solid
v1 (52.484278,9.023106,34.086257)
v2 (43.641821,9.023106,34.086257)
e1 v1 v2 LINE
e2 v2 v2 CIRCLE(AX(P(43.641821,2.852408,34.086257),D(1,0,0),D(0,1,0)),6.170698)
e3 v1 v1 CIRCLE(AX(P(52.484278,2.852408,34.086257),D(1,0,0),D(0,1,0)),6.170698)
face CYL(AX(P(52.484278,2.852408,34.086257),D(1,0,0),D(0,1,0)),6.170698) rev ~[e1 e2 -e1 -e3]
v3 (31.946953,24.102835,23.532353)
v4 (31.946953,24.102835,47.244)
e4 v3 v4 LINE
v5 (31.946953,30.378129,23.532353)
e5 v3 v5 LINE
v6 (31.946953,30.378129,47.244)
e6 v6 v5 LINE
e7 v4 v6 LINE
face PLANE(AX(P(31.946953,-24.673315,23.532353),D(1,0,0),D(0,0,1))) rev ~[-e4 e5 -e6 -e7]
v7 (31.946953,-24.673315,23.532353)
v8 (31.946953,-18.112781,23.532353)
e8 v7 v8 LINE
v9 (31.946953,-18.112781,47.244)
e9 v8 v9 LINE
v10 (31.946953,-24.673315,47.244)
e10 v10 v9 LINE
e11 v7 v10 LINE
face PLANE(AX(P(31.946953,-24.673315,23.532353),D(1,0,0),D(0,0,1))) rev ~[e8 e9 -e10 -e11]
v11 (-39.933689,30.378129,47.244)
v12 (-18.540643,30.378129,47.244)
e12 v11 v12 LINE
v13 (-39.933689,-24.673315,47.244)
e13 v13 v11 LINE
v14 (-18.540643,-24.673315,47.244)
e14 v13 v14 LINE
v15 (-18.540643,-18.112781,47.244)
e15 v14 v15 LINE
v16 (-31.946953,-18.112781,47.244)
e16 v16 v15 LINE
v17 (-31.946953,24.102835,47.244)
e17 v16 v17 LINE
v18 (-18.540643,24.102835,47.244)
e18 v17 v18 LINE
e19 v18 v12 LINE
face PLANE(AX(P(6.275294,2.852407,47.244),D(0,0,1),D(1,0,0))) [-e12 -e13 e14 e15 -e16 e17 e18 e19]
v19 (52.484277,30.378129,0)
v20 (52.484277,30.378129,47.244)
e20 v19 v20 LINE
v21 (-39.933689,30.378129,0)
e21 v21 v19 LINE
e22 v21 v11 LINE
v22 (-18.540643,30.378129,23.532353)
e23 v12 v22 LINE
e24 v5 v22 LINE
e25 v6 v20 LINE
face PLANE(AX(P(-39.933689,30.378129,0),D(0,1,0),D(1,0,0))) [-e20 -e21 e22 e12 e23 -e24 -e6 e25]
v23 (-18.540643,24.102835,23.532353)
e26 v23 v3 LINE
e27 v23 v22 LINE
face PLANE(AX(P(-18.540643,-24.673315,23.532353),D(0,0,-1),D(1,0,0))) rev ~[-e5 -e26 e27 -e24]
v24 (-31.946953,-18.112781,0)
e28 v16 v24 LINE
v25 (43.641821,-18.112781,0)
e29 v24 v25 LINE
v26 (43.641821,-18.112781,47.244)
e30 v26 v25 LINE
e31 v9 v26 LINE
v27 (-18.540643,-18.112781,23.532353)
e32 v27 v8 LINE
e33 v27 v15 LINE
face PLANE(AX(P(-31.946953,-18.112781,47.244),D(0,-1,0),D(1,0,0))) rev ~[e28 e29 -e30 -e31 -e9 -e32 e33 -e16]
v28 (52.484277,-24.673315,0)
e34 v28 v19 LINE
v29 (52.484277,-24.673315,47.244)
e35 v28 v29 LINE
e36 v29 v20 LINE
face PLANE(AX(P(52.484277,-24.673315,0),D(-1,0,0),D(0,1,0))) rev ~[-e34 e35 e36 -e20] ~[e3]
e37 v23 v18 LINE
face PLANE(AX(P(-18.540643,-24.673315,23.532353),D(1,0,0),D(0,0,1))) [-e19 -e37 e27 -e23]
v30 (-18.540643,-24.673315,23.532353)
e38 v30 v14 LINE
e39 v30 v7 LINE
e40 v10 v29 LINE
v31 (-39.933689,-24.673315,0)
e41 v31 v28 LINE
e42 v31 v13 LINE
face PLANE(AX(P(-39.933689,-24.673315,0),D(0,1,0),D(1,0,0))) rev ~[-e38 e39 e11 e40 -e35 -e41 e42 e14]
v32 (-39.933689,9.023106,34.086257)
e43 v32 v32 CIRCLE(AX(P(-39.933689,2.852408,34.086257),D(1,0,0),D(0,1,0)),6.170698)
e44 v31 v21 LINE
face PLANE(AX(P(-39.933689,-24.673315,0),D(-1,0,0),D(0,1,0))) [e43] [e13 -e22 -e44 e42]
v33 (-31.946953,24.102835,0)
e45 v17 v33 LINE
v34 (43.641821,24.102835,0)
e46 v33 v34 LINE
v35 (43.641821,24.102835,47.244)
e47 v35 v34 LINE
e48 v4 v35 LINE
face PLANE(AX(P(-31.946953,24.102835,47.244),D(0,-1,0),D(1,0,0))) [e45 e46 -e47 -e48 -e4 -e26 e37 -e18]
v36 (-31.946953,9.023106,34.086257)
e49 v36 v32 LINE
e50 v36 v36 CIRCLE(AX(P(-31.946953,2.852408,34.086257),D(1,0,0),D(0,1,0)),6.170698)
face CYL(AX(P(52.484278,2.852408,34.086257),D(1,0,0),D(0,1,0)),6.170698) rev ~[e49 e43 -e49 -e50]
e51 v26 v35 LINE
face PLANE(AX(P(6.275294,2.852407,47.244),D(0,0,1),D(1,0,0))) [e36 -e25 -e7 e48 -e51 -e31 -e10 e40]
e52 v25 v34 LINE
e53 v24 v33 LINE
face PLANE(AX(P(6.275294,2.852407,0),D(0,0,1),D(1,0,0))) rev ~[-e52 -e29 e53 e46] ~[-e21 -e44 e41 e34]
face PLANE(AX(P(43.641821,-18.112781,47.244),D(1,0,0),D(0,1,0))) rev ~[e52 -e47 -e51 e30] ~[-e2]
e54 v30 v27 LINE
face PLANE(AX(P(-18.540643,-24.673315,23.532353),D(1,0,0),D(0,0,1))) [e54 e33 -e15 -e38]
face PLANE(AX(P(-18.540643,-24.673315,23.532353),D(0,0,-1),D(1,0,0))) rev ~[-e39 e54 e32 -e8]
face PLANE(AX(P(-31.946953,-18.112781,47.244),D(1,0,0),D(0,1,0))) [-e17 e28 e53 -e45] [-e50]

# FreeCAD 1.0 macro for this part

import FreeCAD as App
import Part
import Sketcher
Q = App.Units.Quantity

doc = App.newDocument("Part")
params = doc.addObject("Spreadsheet::Sheet", "Params")
for row, (alias, value) in enumerate([
    ("pad1_length", "1.86 in"),
], start=1):
    params.set(f"A{row}", alias)
    params.set(f"B{row}", "=" + value)
    params.setAlias(f"B{row}", alias)

body = doc.addObject("PartDesign::Body", "Body")

# Sketch on XY plane
sketch1 = body.newObject("Sketcher::SketchObject", "Sketch")
sketch1.AttachmentSupport = (doc.getObject("XY_Plane"), [""])
sketch1.MapMode = "FlatFace"
sketch1.addGeometry([
    Part.LineSegment(App.Vector(-40, 30, 0), App.Vector(-40, -25, 0)),
    Part.LineSegment(App.Vector(-40, -25, 0), App.Vector(52, -25, 0)),
    Part.LineSegment(App.Vector(52, -25, 0), App.Vector(52, 30, 0)),
    Part.LineSegment(App.Vector(52, 30, 0), App.Vector(-40, 30, 0)),
], False)
sketch1.addConstraint([
    Sketcher.Constraint("Coincident", 0, 2, 1, 1),
    Sketcher.Constraint("Coincident", 1, 2, 2, 1),
    Sketcher.Constraint("Coincident", 2, 2, 3, 1),
    Sketcher.Constraint("Coincident", 3, 2, 0, 1),
    Sketcher.Constraint("Vertical", 0),
    Sketcher.Constraint("Horizontal", 1),
    Sketcher.Constraint("Vertical", 2),
    Sketcher.Constraint("Horizontal", 3),
    Sketcher.Constraint("DistanceX", 1, 1, 1, 2, 92.417967),
    Sketcher.Constraint("DistanceY", 0, 2, 0, 1, 55.051444),
    Sketcher.Constraint("DistanceX", 0, 2, -1, 1, 39.933689),
    Sketcher.Constraint("DistanceY", -1, 1, 2, 2, 30.378129),
])
pad1 = body.newObject("PartDesign::Pad", "Pad")
pad1.Profile = sketch1
pad1.setExpression("Length", "Params.pad1_length")

# Sketch on XY plane
sketch2 = body.newObject("Sketcher::SketchObject", "Sketch001")
sketch2.AttachmentSupport = (doc.getObject("XY_Plane"), [""])
sketch2.MapMode = "FlatFace"
sketch2.AttachmentOffset = App.Placement(App.Vector(0, 0, 1.86 * 25.4), App.Rotation())
sketch2.addGeometry([
    Part.LineSegment(App.Vector(-32, 24, 0), App.Vector(-32, -18, 0)),
    Part.LineSegment(App.Vector(-32, -18, 0), App.Vector(44, -18, 0)),
    Part.LineSegment(App.Vector(44, -18, 0), App.Vector(44, 24, 0)),
    Part.LineSegment(App.Vector(44, 24, 0), App.Vector(-32, 24, 0)),
], False)
sketch2.addConstraint([
    Sketcher.Constraint("Coincident", 0, 2, 1, 1),
    Sketcher.Constraint("Coincident", 1, 2, 2, 1),
    Sketcher.Constraint("Coincident", 2, 2, 3, 1),
    Sketcher.Constraint("Coincident", 3, 2, 0, 1),
    Sketcher.Constraint("Vertical", 0),
    Sketcher.Constraint("Horizontal", 1),
    Sketcher.Constraint("Vertical", 2),
    Sketcher.Constraint("Horizontal", 3),
    Sketcher.Constraint("DistanceX", 1, 1, 1, 2, 75.588774),
    Sketcher.Constraint("DistanceY", 0, 2, 0, 1, 42.215616),
    Sketcher.Constraint("DistanceY", 0, 2, -1, 1, 18.112781),
    Sketcher.Constraint("DistanceX", -1, 1, 1, 2, 43.641821),
])
pocket1 = body.newObject("PartDesign::Pocket", "Pocket")
pocket1.Profile = sketch2
pocket1.Type = "ThroughAll"

# Sketch on XZ plane
sketch3 = body.newObject("Sketcher::SketchObject", "Sketch002")
sketch3.AttachmentSupport = (doc.getObject("XZ_Plane"), [""])
sketch3.MapMode = "FlatFace"
sketch3.AttachmentOffset = App.Placement(App.Vector(0, 0, 24.673315), App.Rotation())
sketch3.addGeometry([
    Part.LineSegment(App.Vector(-19, 47, 0), App.Vector(-19, 24, 0)),
    Part.LineSegment(App.Vector(-19, 24, 0), App.Vector(32, 24, 0)),
    Part.LineSegment(App.Vector(32, 24, 0), App.Vector(32, 47, 0)),
    Part.LineSegment(App.Vector(32, 47, 0), App.Vector(-19, 47, 0)),
], False)
sketch3.addConstraint([
    Sketcher.Constraint("Coincident", 0, 2, 1, 1),
    Sketcher.Constraint("Coincident", 1, 2, 2, 1),
    Sketcher.Constraint("Coincident", 2, 2, 3, 1),
    Sketcher.Constraint("Coincident", 3, 2, 0, 1),
    Sketcher.Constraint("Vertical", 0),
    Sketcher.Constraint("Horizontal", 1),
    Sketcher.Constraint("Vertical", 2),
    Sketcher.Constraint("Horizontal", 3),
    Sketcher.Constraint("DistanceY", -1, 1, 2, 2, Q("1.86 in")),
    Sketcher.Constraint("DistanceX", 1, 1, 1, 2, 50.487596),
    Sketcher.Constraint("DistanceY", 0, 2, 0, 1, 23.711647),
    Sketcher.Constraint("DistanceX", 0, 2, -1, 1, 18.540643),
])
pocket2 = body.newObject("PartDesign::Pocket", "Pocket001")
pocket2.Profile = sketch3
pocket2.Type = "ThroughAll"

# Sketch on YZ plane
sketch4 = body.newObject("Sketcher::SketchObject", "Sketch003")
sketch4.AttachmentSupport = (doc.getObject("YZ_Plane"), [""])
sketch4.MapMode = "FlatFace"
sketch4.AttachmentOffset = App.Placement(App.Vector(0, 0, 52.484278), App.Rotation())
sketch4.addGeometry(Part.Circle(App.Vector(3, 34, 0), App.Vector(0, 0, 1), 6), False)
sketch4.addConstraint([
    Sketcher.Constraint("Diameter", 0, 12.341396),
    Sketcher.Constraint("DistanceX", -1, 1, 0, 3, 2.852408),
    Sketcher.Constraint("DistanceY", -1, 1, 0, 3, 34.086257),
])
pocket3 = body.newObject("PartDesign::Pocket", "Pocket002")
pocket3.Profile = sketch4
pocket3.Type = "ThroughAll"

doc.recompute()
